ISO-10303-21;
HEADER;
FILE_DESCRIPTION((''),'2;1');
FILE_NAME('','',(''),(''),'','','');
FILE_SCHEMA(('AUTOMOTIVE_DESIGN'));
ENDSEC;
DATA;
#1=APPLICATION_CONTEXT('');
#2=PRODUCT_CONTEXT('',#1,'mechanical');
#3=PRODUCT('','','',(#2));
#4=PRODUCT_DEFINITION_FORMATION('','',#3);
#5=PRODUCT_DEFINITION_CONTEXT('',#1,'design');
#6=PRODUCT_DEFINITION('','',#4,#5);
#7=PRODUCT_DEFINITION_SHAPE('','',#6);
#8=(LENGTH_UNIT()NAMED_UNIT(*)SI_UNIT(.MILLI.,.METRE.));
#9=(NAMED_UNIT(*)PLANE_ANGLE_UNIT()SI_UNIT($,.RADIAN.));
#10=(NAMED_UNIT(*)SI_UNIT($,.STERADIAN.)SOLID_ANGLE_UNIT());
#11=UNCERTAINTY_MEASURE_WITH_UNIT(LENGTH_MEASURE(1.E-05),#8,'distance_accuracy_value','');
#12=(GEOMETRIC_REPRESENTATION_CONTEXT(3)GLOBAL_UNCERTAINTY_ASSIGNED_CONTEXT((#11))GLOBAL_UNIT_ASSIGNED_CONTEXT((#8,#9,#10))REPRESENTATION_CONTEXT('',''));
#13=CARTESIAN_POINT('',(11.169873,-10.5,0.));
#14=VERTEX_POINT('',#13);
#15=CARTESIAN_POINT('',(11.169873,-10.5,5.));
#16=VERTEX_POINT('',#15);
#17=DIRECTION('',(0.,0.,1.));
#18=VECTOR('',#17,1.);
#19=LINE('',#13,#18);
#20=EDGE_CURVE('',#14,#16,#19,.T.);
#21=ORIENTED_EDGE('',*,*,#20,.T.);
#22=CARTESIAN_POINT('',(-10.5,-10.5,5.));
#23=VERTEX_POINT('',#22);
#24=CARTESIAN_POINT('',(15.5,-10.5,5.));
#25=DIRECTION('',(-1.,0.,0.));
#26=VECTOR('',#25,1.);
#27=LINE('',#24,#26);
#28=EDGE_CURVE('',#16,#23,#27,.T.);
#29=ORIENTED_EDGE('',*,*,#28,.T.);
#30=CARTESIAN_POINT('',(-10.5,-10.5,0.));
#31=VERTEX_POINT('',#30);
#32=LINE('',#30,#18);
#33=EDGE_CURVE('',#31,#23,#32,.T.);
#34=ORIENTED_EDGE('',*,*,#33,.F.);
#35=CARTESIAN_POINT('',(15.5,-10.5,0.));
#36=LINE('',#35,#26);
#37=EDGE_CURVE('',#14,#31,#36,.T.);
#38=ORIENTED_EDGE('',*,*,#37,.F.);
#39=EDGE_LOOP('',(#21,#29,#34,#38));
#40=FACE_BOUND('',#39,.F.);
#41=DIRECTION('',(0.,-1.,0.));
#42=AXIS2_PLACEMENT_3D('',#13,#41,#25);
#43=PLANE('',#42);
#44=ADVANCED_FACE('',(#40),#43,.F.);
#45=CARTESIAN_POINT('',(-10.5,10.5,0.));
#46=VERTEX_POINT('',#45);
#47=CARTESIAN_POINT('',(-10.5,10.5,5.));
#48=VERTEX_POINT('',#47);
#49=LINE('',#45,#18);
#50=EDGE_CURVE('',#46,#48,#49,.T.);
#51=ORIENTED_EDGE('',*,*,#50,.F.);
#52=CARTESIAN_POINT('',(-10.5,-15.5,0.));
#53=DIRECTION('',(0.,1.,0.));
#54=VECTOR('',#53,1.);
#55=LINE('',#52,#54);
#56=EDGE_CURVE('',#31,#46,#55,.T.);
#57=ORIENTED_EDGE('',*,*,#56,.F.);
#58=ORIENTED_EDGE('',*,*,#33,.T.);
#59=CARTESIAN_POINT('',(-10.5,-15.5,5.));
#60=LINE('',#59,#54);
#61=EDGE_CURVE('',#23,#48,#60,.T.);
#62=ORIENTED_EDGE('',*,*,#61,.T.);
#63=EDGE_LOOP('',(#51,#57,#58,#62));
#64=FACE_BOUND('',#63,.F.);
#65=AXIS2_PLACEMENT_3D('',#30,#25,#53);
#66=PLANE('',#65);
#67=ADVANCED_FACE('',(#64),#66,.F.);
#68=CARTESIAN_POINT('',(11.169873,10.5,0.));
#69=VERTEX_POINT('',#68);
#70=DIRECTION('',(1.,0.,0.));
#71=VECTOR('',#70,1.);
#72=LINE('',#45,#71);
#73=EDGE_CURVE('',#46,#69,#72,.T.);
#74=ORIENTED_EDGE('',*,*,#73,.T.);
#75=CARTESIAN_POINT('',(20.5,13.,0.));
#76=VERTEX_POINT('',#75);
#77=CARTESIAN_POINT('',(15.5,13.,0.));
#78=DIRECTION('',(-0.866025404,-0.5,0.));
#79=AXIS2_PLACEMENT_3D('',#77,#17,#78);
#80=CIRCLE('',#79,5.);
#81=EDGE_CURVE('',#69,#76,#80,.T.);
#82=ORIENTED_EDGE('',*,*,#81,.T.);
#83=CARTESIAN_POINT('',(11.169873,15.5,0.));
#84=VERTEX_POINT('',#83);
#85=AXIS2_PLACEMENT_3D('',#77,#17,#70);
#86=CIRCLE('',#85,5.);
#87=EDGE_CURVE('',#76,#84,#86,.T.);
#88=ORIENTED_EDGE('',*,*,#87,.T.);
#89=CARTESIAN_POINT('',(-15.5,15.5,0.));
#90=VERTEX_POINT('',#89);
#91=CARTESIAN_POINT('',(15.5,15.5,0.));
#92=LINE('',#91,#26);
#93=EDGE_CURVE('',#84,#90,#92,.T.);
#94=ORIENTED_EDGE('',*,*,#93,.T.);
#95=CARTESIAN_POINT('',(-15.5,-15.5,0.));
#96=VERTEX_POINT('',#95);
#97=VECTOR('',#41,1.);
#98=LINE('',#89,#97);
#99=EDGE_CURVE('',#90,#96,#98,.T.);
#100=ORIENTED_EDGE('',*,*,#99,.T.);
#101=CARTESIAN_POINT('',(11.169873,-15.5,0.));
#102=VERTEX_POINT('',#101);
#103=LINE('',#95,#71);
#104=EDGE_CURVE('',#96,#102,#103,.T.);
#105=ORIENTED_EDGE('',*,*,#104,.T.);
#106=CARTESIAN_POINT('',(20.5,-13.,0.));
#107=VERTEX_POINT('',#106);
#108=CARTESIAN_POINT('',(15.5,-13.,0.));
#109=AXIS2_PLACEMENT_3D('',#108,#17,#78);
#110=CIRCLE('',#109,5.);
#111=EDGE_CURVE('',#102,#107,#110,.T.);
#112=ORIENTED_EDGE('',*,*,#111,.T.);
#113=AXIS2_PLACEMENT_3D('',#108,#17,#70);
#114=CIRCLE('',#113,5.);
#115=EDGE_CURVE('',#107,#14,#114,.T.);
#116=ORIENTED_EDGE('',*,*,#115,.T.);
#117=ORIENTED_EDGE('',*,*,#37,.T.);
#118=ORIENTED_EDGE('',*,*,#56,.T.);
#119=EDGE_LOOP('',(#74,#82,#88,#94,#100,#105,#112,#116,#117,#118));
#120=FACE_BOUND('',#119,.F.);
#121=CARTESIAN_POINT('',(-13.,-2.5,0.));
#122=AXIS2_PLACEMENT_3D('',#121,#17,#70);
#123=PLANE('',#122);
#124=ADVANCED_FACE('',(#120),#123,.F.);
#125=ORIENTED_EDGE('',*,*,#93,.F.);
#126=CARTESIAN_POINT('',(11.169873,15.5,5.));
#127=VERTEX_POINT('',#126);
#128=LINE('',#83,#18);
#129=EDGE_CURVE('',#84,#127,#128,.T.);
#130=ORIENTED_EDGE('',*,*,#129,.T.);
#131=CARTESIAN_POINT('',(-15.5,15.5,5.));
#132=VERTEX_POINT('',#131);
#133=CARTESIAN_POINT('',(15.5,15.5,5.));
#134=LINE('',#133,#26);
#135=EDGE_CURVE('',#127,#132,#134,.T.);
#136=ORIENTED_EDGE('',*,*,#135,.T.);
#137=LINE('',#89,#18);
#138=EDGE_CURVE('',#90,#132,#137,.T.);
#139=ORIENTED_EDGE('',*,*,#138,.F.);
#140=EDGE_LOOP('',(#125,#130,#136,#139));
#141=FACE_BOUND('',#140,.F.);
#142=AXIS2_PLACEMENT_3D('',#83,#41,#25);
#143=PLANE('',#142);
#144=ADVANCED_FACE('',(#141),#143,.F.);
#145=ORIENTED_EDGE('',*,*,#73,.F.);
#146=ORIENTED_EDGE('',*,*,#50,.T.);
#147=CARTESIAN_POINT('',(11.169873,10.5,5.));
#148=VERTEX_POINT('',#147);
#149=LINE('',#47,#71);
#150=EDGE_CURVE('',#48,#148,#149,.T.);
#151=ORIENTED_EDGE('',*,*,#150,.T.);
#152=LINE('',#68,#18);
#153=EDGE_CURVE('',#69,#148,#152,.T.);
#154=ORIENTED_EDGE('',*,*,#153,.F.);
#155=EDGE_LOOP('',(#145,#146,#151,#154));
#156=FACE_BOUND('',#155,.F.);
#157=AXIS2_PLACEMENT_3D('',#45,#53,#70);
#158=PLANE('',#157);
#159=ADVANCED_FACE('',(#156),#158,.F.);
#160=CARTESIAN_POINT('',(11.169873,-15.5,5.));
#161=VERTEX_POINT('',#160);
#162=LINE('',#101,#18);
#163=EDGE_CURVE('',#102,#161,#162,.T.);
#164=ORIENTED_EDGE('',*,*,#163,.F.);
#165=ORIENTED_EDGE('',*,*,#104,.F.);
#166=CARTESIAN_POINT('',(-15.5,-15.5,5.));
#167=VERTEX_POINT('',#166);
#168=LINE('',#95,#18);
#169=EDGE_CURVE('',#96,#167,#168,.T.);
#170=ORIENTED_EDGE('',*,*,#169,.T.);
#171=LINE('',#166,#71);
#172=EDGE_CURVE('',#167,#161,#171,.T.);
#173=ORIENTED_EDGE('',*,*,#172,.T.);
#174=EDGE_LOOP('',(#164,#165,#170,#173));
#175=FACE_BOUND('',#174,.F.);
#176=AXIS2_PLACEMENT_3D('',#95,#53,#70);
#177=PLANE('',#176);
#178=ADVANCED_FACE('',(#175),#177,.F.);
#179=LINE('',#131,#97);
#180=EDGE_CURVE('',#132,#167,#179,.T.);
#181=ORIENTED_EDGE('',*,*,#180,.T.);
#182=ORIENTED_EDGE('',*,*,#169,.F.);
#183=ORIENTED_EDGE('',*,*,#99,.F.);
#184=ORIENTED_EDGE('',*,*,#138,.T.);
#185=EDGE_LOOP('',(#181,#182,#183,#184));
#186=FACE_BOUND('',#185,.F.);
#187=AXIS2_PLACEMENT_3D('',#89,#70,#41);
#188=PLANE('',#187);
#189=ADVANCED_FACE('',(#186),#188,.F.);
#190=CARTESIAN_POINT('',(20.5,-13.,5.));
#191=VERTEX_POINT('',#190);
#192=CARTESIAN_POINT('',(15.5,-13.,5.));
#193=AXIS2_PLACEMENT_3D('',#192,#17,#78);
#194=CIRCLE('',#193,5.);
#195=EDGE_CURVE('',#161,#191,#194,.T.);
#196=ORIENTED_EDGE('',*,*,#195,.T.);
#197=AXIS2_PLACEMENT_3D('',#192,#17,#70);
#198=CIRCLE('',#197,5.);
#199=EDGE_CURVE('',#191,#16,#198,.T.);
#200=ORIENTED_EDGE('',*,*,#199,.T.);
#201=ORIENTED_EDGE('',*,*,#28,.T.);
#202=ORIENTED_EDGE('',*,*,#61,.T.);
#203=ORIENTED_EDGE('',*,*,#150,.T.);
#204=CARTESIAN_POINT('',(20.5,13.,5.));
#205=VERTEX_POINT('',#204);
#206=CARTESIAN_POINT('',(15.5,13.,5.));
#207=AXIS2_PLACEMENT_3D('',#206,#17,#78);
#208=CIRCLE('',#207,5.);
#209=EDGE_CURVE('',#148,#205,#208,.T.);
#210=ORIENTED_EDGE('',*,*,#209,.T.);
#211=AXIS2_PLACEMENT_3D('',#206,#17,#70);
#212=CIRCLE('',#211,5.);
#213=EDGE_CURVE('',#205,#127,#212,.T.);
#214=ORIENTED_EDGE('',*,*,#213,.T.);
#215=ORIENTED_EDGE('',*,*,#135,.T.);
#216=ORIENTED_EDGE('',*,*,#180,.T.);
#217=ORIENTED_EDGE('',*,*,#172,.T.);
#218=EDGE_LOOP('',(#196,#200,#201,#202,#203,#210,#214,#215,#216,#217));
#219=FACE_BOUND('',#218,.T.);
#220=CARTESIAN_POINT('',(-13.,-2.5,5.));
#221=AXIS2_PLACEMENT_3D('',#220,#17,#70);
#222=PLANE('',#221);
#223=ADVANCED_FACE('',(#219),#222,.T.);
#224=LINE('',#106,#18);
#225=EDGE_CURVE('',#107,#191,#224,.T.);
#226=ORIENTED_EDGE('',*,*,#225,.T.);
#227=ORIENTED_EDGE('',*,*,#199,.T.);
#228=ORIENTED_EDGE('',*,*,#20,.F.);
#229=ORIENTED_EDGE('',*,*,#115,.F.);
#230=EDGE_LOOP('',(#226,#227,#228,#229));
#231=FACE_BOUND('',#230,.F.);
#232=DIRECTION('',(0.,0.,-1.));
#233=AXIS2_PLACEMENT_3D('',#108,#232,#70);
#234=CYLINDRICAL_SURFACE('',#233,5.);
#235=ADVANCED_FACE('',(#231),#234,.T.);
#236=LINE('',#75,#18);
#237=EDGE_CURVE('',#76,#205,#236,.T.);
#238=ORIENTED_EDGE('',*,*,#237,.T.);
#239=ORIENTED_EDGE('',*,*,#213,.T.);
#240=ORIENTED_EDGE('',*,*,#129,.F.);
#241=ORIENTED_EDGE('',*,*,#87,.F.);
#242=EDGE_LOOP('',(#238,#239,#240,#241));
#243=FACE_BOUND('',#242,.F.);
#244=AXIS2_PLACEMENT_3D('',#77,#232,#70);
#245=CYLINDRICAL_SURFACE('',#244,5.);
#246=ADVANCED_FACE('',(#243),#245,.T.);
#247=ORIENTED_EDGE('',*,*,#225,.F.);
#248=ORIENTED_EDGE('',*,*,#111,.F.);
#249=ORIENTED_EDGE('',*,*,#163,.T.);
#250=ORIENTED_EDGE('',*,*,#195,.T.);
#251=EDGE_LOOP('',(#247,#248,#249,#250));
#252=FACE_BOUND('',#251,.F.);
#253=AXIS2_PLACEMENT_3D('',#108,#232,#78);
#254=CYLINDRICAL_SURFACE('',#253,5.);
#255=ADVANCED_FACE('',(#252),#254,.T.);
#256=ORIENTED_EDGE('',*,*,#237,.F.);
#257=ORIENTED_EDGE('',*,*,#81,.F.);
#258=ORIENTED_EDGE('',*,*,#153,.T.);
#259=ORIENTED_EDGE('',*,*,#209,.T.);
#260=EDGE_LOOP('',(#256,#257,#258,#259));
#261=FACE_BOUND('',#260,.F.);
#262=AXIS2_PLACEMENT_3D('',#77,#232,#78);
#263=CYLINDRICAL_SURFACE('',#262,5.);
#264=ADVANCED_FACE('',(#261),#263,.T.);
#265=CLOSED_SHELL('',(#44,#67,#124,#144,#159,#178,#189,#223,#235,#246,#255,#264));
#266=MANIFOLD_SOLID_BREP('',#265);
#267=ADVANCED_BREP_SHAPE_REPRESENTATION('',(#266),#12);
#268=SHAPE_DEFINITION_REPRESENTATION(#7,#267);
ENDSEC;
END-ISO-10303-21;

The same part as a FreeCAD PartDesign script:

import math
import FreeCAD as App
import Part
import Sketcher

V = App.Vector

doc = App.newDocument("Part")
body = doc.addObject("PartDesign::Body", "Body")

# Sketch on XY plane
sketch1 = body.newObject("Sketcher::SketchObject", "Sketch")
sketch1.AttachmentSupport = (doc.getObject("XY_Plane"), [""])
sketch1.MapMode = "FlatFace"
sketch1.addGeometry(Part.LineSegment(V(-16, -16, 0), V(11, -16, 0)), False)
sketch1.addGeometry(Part.ArcOfCircle(Part.Circle(V(16, -13, 0), V(0, 0, 1), 5), math.radians(-150), math.radians(0)), False)
sketch1.addGeometry(Part.ArcOfCircle(Part.Circle(V(16, -13, 0), V(0, 0, 1), 5), math.radians(0), math.radians(150)), False)
sketch1.addGeometry(Part.LineSegment(V(11, -10, 0), V(-10, -10, 0)), False)
sketch1.addGeometry(Part.LineSegment(V(-10, -10, 0), V(-10, 10, 0)), False)
sketch1.addGeometry(Part.LineSegment(V(-10, 10, 0), V(11, 10, 0)), False)
sketch1.addGeometry(Part.ArcOfCircle(Part.Circle(V(16, 13, 0), V(0, 0, 1), 5), math.radians(-150), math.radians(0)), False)
sketch1.addGeometry(Part.ArcOfCircle(Part.Circle(V(16, 13, 0), V(0, 0, 1), 5), math.radians(0), math.radians(150)), False)
sketch1.addGeometry(Part.LineSegment(V(11, 16, 0), V(-16, 16, 0)), False)
sketch1.addGeometry(Part.LineSegment(V(-16, 16, 0), V(-16, -16, 0)), False)
sketch1.addConstraint(Sketcher.Constraint("Coincident", 0, 2, 1, 1))
sketch1.addConstraint(Sketcher.Constraint("Tangent", 1, 2, 2, 1))
sketch1.addConstraint(Sketcher.Constraint("Coincident", 2, 2, 3, 1))
sketch1.addConstraint(Sketcher.Constraint("Coincident", 3, 2, 4, 1))
sketch1.addConstraint(Sketcher.Constraint("Coincident", 4, 2, 5, 1))
sketch1.addConstraint(Sketcher.Constraint("Coincident", 5, 2, 6, 1))
sketch1.addConstraint(Sketcher.Constraint("Tangent", 6, 2, 7, 1))
sketch1.addConstraint(Sketcher.Constraint("Coincident", 7, 2, 8, 1))
sketch1.addConstraint(Sketcher.Constraint("Coincident", 8, 2, 9, 1))
sketch1.addConstraint(Sketcher.Constraint("Coincident", 9, 2, 0, 1))
sketch1.addConstraint(Sketcher.Constraint("Horizontal", 0))
sketch1.addConstraint(Sketcher.Constraint("Horizontal", 3))
sketch1.addConstraint(Sketcher.Constraint("Vertical", 4))
sketch1.addConstraint(Sketcher.Constraint("Horizontal", 5))
sketch1.addConstraint(Sketcher.Constraint("Horizontal", 8))
sketch1.addConstraint(Sketcher.Constraint("Vertical", 9))
sketch1.addConstraint(Sketcher.Constraint("Equal", 1, 2))
sketch1.addConstraint(Sketcher.Constraint("Equal", 2, 6))
sketch1.addConstraint(Sketcher.Constraint("Equal", 6, 7))
sketch1.addConstraint(Sketcher.Constraint("Symmetric", 1, 3, 6, 3, -1))
sketch1.addConstraint(Sketcher.Constraint("Horizontal", 2, 3, 1, 2))
sketch1.addConstraint(Sketcher.Constraint("Horizontal", 7, 3, 6, 2))
sketch1.addConstraint(Sketcher.Constraint("Vertical", 0, 2, 2, 2))
sketch1.addConstraint(Sketcher.Constraint("Vertical", 2, 2, 5, 2))
sketch1.addConstraint(Sketcher.Constraint("Vertical", 5, 2, 7, 2))
sketch1.addConstraint(Sketcher.Constraint("Radius", 1, 5.0))
sketch1.addConstraint(Sketcher.Constraint("DistanceY", 4, 1, 4, 2, 21.0))
sketch1.addConstraint(Sketcher.Constraint("DistanceY", 9, 2, 9, 1, 31.0))
sketch1.addConstraint(Sketcher.Constraint("DistanceX", 3, 2, 1, 3, 26.0))
sketch1.addConstraint(Sketcher.Constraint("DistanceX", 8, 2, 4, 2, 5.0))
sketch1.addConstraint(Sketcher.Constraint("DistanceX", -1, 1, 1, 3, 15.5))
pad1 = body.newObject("PartDesign::Pad", "Pad")
pad1.Profile = sketch1
pad1.Length = 5

doc.recompute()
